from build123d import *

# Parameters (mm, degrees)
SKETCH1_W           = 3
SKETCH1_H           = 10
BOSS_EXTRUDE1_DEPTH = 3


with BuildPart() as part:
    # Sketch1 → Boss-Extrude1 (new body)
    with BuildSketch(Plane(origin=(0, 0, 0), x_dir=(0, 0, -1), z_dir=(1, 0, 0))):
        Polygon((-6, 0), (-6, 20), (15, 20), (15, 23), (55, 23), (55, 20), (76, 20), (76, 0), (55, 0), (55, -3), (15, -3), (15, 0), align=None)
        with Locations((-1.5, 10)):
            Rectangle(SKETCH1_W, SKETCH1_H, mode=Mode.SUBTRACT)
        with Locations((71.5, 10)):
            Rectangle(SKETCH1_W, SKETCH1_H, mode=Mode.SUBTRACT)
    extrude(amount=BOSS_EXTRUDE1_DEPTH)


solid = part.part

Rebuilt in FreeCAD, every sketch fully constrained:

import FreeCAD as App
import Part
import Sketcher

V = App.Vector
Q = App.Units.Quantity


def add_polygon(sketch, points):
    """Adds a closed chain of lines whose ends are joined by coincident constraints."""
    first, n = sketch.GeometryCount, len(points)
    for a, b in zip(points, points[1:] + points[:1]):
        sketch.addGeometry(Part.LineSegment(App.Vector(*a, 0), App.Vector(*b, 0)), False)
    for i in range(n):
        sketch.addConstraint(Sketcher.Constraint("Coincident", first + i, 2, first + (i + 1) % n, 1))

doc = App.newDocument("Part")
params = doc.addObject("Spreadsheet::Sheet", "Params")
for row, (alias, value) in enumerate([
    ("sketch1_width", "20 mm"),
    ("sketch1_width2", "3 mm"),
    ("sketch1_width3", "10 mm"),
    ("sketch1_height", "21 mm"),
    ("sketch1_height2", "40 mm"),
    ("pad1_length", "3 mm"),
], start=1):
    params.set(f"A{row}", alias)
    params.set(f"B{row}", "=" + value)
    params.setAlias(f"B{row}", alias)

body = doc.addObject("PartDesign::Body", "Body")

# Sketch on YZ plane
sketch1 = body.newObject("Sketcher::SketchObject", "Sketch")
sketch1.AttachmentSupport = (doc.getObject("YZ_Plane"), [""])
sketch1.MapMode = "FlatFace"
add_polygon(sketch1, [(20, 6), (0, 6), (0, -15), (-3, -15), (-3, -55), (0, -55), (0, -76), (20, -76), (20, -55), (23, -55), (23, -15), (20, -15)])  # lines 0-11
add_polygon(sketch1, [(5, -70), (15, -70), (15, -73), (5, -73)])  # lines 12-15
add_polygon(sketch1, [(5, 3), (15, 3), (15, 0), (5, 0)])  # lines 16-19
sketch1.addConstraint([
    Sketcher.Constraint("Horizontal", 0),
    Sketcher.Constraint("Vertical", 1),
    Sketcher.Constraint("Horizontal", 2),
    Sketcher.Constraint("Vertical", 3),
    Sketcher.Constraint("Horizontal", 4),
    Sketcher.Constraint("Vertical", 5),
    Sketcher.Constraint("Horizontal", 6),
    Sketcher.Constraint("Vertical", 7),
    Sketcher.Constraint("Horizontal", 8),
    Sketcher.Constraint("Vertical", 9),
    Sketcher.Constraint("Horizontal", 10),
    Sketcher.Constraint("Vertical", 11),
    Sketcher.Constraint("Horizontal", 12),
    Sketcher.Constraint("Vertical", 13),
    Sketcher.Constraint("Horizontal", 14),
    Sketcher.Constraint("Vertical", 15),
    Sketcher.Constraint("Horizontal", 16),
    Sketcher.Constraint("Vertical", 17),
    Sketcher.Constraint("Horizontal", 18),
    Sketcher.Constraint("Vertical", 19),
    Sketcher.Constraint("PointOnObject", 0, 2, -2),
    Sketcher.Constraint("PointOnObject", 4, 2, -2),
    Sketcher.Constraint("PointOnObject", 17, 2, -1),
    Sketcher.Constraint("Horizontal", 4, 2, 7, 2),
    Sketcher.Constraint("Horizontal", 2, 2, 9, 2),
    Sketcher.Constraint("Vertical", 7, 2, 10, 2),
    Sketcher.Constraint("Vertical", 13, 2, 16, 2),
    Sketcher.Constraint("Vertical", 15, 2, 18, 2),
    Sketcher.Constraint("Equal", 4, 8),
    Sketcher.Constraint("Equal", 1, 5),
    Sketcher.Constraint("Equal", 10, 13),
    Sketcher.Constraint("Equal", 15, 17),
    Sketcher.Constraint("DistanceX", 0, 2, 0, 1, Q("20 mm")),
    Sketcher.Constraint("DistanceX", 2, 2, 2, 1, Q("3 mm")),
    Sketcher.Constraint("DistanceX", 12, 1, 12, 2, Q("10 mm")),
    Sketcher.Constraint("DistanceY", 1, 2, 1, 1, Q("21 mm")),
    Sketcher.Constraint("DistanceY", 3, 2, 3, 1, Q("40 mm")),
    Sketcher.Constraint("DistanceY", -1, 1, 0, 2, Q("6 mm")),
    Sketcher.Constraint("DistanceX", -1, 1, 12, 2, Q("15 mm")),
    Sketcher.Constraint("DistanceY", 12, 2, -1, 1, Q("70 mm")),
])
sketch1.setExpression("Constraints[52]", "Params.sketch1_width")
sketch1.setExpression("Constraints[53]", "Params.sketch1_width2")
sketch1.setExpression("Constraints[54]", "Params.sketch1_width3")
sketch1.setExpression("Constraints[55]", "Params.sketch1_height")
sketch1.setExpression("Constraints[56]", "Params.sketch1_height2")
pad1 = body.newObject("PartDesign::Pad", "Pad")
pad1.Profile = sketch1
pad1.setExpression("Length", "Params.pad1_length")

doc.recompute()
